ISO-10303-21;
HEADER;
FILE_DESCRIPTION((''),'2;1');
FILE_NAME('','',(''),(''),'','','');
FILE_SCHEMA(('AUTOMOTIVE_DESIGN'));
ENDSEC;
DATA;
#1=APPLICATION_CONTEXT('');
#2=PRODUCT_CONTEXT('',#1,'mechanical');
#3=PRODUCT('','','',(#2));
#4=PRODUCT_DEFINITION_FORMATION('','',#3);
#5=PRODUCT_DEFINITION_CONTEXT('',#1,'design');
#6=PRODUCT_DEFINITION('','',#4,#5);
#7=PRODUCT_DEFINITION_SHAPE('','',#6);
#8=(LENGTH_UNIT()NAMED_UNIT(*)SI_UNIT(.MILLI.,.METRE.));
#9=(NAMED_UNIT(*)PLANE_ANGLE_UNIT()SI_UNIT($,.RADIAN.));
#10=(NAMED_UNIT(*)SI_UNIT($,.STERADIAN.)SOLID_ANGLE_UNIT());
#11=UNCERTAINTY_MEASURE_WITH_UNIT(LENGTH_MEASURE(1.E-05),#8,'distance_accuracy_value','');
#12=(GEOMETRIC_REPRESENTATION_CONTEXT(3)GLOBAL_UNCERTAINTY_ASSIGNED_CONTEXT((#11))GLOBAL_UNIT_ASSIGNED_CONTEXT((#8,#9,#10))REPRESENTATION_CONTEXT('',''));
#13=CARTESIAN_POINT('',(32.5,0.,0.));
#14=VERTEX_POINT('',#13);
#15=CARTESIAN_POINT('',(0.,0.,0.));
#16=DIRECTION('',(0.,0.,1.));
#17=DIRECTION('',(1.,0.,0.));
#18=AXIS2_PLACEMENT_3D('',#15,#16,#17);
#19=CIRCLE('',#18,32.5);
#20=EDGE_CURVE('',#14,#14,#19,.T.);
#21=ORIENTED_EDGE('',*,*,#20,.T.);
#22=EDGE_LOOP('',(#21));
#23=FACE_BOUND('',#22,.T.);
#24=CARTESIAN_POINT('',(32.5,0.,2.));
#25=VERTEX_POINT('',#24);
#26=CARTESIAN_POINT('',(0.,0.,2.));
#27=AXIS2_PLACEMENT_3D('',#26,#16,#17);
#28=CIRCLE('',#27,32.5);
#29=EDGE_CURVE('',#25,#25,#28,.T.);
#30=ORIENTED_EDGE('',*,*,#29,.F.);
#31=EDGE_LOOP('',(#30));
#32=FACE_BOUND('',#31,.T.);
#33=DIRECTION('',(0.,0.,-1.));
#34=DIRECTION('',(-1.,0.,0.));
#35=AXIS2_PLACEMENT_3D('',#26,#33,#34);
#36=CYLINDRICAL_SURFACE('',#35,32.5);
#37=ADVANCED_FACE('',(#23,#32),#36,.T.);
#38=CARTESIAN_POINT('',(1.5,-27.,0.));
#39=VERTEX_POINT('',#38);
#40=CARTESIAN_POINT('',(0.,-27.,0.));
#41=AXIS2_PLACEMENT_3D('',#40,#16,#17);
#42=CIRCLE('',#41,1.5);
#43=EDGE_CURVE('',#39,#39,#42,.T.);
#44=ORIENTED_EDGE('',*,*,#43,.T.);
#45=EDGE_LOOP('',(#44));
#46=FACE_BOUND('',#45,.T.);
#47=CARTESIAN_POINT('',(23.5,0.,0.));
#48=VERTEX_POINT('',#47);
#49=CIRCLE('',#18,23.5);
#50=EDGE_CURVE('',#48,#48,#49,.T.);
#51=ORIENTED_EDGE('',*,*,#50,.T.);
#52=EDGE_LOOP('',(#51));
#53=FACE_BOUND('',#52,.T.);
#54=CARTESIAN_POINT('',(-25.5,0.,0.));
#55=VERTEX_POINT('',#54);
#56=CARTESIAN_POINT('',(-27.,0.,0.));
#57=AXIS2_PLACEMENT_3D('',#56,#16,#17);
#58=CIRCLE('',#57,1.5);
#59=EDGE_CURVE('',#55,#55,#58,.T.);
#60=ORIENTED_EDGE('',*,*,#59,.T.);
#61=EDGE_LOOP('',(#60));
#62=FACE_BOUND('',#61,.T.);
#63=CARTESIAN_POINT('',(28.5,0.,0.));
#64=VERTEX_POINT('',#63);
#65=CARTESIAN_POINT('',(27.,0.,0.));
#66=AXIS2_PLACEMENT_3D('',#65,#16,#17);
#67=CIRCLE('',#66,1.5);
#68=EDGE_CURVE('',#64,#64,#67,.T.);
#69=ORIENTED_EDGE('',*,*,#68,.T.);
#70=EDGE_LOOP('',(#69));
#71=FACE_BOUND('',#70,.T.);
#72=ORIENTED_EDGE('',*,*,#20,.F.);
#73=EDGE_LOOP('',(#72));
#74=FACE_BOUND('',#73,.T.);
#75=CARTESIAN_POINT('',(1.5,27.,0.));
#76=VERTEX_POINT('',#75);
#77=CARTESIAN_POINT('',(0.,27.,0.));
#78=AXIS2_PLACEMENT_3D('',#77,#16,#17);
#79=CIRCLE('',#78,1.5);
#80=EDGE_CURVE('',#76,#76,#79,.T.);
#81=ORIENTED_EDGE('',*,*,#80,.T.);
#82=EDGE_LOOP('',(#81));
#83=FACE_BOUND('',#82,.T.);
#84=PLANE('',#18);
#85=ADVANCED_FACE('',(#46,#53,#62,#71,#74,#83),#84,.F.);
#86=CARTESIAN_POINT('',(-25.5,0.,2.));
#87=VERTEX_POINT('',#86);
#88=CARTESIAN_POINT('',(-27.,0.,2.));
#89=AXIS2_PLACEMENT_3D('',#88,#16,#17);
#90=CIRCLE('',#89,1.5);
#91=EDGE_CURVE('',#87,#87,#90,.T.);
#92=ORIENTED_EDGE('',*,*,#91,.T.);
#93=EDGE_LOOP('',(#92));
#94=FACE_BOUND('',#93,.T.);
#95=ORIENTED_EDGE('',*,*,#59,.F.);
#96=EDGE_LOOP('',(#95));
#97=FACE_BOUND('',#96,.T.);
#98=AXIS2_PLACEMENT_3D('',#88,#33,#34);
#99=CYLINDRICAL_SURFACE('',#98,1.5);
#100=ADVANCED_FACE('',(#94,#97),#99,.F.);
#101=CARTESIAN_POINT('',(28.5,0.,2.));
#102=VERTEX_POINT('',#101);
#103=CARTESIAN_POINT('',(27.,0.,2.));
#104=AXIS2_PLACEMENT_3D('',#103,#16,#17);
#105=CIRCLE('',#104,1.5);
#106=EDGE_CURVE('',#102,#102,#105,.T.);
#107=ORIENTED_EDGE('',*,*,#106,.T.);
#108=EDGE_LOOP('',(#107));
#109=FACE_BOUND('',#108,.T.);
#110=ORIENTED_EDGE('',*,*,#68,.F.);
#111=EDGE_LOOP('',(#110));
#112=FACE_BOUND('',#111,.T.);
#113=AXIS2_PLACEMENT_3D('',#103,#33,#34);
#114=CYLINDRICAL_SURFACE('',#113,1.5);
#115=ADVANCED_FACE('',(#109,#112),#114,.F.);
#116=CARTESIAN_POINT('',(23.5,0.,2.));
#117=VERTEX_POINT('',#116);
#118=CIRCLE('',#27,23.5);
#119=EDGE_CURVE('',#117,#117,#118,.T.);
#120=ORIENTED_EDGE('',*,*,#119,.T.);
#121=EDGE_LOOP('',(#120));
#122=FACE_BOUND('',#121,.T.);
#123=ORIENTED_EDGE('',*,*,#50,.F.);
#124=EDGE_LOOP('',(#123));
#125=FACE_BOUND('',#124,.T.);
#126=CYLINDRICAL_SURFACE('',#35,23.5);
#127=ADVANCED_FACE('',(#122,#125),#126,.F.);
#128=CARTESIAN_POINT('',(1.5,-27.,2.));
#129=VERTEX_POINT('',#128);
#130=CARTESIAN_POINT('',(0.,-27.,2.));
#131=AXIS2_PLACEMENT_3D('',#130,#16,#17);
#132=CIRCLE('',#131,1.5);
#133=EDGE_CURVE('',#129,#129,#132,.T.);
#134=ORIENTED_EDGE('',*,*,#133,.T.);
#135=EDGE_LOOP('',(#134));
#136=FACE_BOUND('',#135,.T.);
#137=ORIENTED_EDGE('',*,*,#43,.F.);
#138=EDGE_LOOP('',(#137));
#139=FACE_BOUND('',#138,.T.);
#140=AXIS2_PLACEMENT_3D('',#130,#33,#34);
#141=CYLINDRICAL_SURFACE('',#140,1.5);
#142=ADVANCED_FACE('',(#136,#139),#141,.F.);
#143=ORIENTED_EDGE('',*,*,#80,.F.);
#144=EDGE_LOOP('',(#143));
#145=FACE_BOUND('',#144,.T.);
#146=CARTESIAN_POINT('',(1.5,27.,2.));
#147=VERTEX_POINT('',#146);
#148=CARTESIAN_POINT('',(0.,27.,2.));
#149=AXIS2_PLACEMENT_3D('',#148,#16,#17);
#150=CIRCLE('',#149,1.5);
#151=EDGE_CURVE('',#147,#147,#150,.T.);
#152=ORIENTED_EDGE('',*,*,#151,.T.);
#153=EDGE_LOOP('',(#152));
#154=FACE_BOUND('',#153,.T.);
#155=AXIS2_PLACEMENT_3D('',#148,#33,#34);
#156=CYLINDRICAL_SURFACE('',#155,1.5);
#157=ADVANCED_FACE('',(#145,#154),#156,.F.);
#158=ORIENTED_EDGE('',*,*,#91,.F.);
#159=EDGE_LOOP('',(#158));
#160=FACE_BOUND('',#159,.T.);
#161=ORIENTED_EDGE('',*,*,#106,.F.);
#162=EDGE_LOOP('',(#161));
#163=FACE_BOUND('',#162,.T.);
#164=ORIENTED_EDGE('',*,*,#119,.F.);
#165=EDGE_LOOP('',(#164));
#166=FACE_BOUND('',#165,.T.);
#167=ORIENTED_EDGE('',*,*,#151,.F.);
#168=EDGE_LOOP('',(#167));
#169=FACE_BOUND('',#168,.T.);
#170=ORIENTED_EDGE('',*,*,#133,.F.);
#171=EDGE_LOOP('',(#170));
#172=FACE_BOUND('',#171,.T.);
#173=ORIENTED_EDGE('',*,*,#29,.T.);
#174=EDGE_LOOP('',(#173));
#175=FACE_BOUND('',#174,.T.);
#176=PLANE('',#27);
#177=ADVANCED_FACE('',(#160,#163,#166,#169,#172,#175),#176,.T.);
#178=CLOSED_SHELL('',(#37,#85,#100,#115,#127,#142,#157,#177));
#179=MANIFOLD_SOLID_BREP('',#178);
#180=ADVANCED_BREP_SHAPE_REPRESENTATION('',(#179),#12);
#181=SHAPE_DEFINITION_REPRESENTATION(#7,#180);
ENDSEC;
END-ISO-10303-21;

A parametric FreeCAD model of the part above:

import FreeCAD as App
import Part
import Sketcher

doc = App.newDocument("Part")
body = doc.addObject("PartDesign::Body", "Body")

# Sketch on XY plane
sketch1 = body.newObject("Sketcher::SketchObject", "Sketch")
sketch1.AttachmentSupport = (doc.getObject("XY_Plane"), [""])
sketch1.MapMode = "FlatFace"
sketch1.addGeometry(Part.Circle(App.Vector(0, 0, 0), App.Vector(0, 0, 1), 32.5), False)
sketch1.addGeometry(Part.Circle(App.Vector(0, -27, 0), App.Vector(0, 0, 1), 1.5), False)
sketch1.addGeometry(Part.Circle(App.Vector(-27, 0, 0), App.Vector(0, 0, 1), 1.5), False)
sketch1.addGeometry(Part.Circle(App.Vector(0, 0, 0), App.Vector(0, 0, 1), 23.5), False)
sketch1.addGeometry(Part.Circle(App.Vector(27, 0, 0), App.Vector(0, 0, 1), 1.5), False)
sketch1.addGeometry(Part.Circle(App.Vector(0, 27, 0), App.Vector(0, 0, 1), 1.5), False)
sketch1.addConstraint(Sketcher.Constraint("Coincident", 0, 3, -1, 1))
sketch1.addConstraint(Sketcher.Constraint("Coincident", 3, 3, -1, 1))
sketch1.addConstraint(Sketcher.Constraint("Equal", 1, 2))
sketch1.addConstraint(Sketcher.Constraint("Equal", 2, 4))
sketch1.addConstraint(Sketcher.Constraint("Equal", 4, 5))
sketch1.addConstraint(Sketcher.Constraint("Symmetric", 2, 3, 4, 3, -1, 1))
sketch1.addConstraint(Sketcher.Constraint("Symmetric", 1, 3, 5, 3, -1, 1))
sketch1.addConstraint(Sketcher.Constraint("PointOnObject", 1, 3, -2))
sketch1.addConstraint(Sketcher.Constraint("PointOnObject", 2, 3, -1))
sketch1.addConstraint(Sketcher.Constraint("Diameter", 0, 65.0))
sketch1.addConstraint(Sketcher.Constraint("Diameter", 1, 3.0))
sketch1.addConstraint(Sketcher.Constraint("Diameter", 3, 47.0))
sketch1.addConstraint(Sketcher.Constraint("DistanceY", 1, 3, -1, 1, 27.0))
sketch1.addConstraint(Sketcher.Constraint("DistanceX", 2, 3, -1, 1, 27.0))
pad1 = body.newObject("PartDesign::Pad", "Pad")
pad1.Profile = sketch1
pad1.Length = 2

doc.recompute()
